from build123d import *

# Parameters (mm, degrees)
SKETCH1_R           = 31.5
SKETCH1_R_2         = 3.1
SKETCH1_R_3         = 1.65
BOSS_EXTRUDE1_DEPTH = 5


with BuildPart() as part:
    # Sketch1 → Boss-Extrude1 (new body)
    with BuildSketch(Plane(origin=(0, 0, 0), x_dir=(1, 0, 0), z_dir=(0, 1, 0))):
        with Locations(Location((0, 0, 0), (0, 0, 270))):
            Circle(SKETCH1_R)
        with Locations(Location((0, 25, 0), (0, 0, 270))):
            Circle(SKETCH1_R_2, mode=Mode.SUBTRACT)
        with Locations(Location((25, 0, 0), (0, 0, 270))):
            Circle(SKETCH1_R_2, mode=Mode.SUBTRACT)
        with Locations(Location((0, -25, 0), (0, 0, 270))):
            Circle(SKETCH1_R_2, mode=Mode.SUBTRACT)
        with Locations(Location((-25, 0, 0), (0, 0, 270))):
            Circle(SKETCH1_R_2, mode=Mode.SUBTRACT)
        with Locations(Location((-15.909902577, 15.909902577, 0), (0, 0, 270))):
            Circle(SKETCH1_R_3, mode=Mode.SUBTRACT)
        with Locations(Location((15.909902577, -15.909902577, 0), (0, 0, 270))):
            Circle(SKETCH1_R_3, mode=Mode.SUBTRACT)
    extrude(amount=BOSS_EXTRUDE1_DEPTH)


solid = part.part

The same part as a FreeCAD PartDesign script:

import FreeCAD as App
import Part
import Sketcher

V = App.Vector
Q = App.Units.Quantity

doc = App.newDocument("Part")
body = doc.addObject("PartDesign::Body", "Body")

sketch1 = body.newObject("Sketcher::SketchObject", "Sketch")
sketch1.AttachmentSupport = (doc.getObject("XZ_Plane"), [""])
sketch1.MapMode = "FlatFace"
sketch1.addGeometry(Part.Circle(V(0, 0, 0), V(0, 0, 1), 31.5), False)
sketch1.addGeometry(Part.Circle(V(-15.909903, -15.909903, 0), V(0, 0, 1), 1.65), False)
sketch1.addGeometry(Part.Circle(V(0, -25, 0), V(0, 0, 1), 3.1), False)
sketch1.addGeometry(Part.Circle(V(-25, 0, 0), V(0, 0, 1), 3.1), False)
sketch1.addGeometry(Part.Circle(V(25, 0, 0), V(0, 0, 1), 3.1), False)
sketch1.addGeometry(Part.Circle(V(0, 25, 0), V(0, 0, 1), 3.1), False)
sketch1.addGeometry(Part.Circle(V(15.909903, 15.909903, 0), V(0, 0, 1), 1.65), False)
sketch1.addConstraint(Sketcher.Constraint("Coincident", 0, 3, -1, 1))
sketch1.addConstraint(Sketcher.Constraint("Equal", 2, 3))
sketch1.addConstraint(Sketcher.Constraint("Equal", 3, 4))
sketch1.addConstraint(Sketcher.Constraint("Equal", 4, 5))
sketch1.addConstraint(Sketcher.Constraint("Equal", 1, 6))
sketch1.addConstraint(Sketcher.Constraint("Symmetric", 3, 3, 4, 3, -1, 1))
sketch1.addConstraint(Sketcher.Constraint("Symmetric", 2, 3, 5, 3, -1, 1))
sketch1.addConstraint(Sketcher.Constraint("Symmetric", 1, 3, 6, 3, -1, 1))
sketch1.addConstraint(Sketcher.Constraint("PointOnObject", 2, 3, -2))
sketch1.addConstraint(Sketcher.Constraint("PointOnObject", 3, 3, -1))
sketch1.addConstraint(Sketcher.Constraint("Diameter", 0, Q("63 mm")))
sketch1.addConstraint(Sketcher.Constraint("Diameter", 1, Q("3.3 mm")))
sketch1.addConstraint(Sketcher.Constraint("Diameter", 2, Q("6.2 mm")))
sketch1.addConstraint(Sketcher.Constraint("DistanceY", 2, 3, -1, 1, Q("25 mm")))
sketch1.addConstraint(Sketcher.Constraint("DistanceX", 3, 3, -1, 1, Q("25 mm")))
sketch1.addConstraint(Sketcher.Constraint("DistanceX", 1, 3, -1, 1, Q("15.909903 mm")))
sketch1.addConstraint(Sketcher.Constraint("DistanceY", 1, 3, -1, 1, Q("15.909903 mm")))
pad1 = body.newObject("PartDesign::Pad", "Pad")
pad1.Profile = sketch1
pad1.Length = 5
pad1.Reversed = True

doc.recompute()
